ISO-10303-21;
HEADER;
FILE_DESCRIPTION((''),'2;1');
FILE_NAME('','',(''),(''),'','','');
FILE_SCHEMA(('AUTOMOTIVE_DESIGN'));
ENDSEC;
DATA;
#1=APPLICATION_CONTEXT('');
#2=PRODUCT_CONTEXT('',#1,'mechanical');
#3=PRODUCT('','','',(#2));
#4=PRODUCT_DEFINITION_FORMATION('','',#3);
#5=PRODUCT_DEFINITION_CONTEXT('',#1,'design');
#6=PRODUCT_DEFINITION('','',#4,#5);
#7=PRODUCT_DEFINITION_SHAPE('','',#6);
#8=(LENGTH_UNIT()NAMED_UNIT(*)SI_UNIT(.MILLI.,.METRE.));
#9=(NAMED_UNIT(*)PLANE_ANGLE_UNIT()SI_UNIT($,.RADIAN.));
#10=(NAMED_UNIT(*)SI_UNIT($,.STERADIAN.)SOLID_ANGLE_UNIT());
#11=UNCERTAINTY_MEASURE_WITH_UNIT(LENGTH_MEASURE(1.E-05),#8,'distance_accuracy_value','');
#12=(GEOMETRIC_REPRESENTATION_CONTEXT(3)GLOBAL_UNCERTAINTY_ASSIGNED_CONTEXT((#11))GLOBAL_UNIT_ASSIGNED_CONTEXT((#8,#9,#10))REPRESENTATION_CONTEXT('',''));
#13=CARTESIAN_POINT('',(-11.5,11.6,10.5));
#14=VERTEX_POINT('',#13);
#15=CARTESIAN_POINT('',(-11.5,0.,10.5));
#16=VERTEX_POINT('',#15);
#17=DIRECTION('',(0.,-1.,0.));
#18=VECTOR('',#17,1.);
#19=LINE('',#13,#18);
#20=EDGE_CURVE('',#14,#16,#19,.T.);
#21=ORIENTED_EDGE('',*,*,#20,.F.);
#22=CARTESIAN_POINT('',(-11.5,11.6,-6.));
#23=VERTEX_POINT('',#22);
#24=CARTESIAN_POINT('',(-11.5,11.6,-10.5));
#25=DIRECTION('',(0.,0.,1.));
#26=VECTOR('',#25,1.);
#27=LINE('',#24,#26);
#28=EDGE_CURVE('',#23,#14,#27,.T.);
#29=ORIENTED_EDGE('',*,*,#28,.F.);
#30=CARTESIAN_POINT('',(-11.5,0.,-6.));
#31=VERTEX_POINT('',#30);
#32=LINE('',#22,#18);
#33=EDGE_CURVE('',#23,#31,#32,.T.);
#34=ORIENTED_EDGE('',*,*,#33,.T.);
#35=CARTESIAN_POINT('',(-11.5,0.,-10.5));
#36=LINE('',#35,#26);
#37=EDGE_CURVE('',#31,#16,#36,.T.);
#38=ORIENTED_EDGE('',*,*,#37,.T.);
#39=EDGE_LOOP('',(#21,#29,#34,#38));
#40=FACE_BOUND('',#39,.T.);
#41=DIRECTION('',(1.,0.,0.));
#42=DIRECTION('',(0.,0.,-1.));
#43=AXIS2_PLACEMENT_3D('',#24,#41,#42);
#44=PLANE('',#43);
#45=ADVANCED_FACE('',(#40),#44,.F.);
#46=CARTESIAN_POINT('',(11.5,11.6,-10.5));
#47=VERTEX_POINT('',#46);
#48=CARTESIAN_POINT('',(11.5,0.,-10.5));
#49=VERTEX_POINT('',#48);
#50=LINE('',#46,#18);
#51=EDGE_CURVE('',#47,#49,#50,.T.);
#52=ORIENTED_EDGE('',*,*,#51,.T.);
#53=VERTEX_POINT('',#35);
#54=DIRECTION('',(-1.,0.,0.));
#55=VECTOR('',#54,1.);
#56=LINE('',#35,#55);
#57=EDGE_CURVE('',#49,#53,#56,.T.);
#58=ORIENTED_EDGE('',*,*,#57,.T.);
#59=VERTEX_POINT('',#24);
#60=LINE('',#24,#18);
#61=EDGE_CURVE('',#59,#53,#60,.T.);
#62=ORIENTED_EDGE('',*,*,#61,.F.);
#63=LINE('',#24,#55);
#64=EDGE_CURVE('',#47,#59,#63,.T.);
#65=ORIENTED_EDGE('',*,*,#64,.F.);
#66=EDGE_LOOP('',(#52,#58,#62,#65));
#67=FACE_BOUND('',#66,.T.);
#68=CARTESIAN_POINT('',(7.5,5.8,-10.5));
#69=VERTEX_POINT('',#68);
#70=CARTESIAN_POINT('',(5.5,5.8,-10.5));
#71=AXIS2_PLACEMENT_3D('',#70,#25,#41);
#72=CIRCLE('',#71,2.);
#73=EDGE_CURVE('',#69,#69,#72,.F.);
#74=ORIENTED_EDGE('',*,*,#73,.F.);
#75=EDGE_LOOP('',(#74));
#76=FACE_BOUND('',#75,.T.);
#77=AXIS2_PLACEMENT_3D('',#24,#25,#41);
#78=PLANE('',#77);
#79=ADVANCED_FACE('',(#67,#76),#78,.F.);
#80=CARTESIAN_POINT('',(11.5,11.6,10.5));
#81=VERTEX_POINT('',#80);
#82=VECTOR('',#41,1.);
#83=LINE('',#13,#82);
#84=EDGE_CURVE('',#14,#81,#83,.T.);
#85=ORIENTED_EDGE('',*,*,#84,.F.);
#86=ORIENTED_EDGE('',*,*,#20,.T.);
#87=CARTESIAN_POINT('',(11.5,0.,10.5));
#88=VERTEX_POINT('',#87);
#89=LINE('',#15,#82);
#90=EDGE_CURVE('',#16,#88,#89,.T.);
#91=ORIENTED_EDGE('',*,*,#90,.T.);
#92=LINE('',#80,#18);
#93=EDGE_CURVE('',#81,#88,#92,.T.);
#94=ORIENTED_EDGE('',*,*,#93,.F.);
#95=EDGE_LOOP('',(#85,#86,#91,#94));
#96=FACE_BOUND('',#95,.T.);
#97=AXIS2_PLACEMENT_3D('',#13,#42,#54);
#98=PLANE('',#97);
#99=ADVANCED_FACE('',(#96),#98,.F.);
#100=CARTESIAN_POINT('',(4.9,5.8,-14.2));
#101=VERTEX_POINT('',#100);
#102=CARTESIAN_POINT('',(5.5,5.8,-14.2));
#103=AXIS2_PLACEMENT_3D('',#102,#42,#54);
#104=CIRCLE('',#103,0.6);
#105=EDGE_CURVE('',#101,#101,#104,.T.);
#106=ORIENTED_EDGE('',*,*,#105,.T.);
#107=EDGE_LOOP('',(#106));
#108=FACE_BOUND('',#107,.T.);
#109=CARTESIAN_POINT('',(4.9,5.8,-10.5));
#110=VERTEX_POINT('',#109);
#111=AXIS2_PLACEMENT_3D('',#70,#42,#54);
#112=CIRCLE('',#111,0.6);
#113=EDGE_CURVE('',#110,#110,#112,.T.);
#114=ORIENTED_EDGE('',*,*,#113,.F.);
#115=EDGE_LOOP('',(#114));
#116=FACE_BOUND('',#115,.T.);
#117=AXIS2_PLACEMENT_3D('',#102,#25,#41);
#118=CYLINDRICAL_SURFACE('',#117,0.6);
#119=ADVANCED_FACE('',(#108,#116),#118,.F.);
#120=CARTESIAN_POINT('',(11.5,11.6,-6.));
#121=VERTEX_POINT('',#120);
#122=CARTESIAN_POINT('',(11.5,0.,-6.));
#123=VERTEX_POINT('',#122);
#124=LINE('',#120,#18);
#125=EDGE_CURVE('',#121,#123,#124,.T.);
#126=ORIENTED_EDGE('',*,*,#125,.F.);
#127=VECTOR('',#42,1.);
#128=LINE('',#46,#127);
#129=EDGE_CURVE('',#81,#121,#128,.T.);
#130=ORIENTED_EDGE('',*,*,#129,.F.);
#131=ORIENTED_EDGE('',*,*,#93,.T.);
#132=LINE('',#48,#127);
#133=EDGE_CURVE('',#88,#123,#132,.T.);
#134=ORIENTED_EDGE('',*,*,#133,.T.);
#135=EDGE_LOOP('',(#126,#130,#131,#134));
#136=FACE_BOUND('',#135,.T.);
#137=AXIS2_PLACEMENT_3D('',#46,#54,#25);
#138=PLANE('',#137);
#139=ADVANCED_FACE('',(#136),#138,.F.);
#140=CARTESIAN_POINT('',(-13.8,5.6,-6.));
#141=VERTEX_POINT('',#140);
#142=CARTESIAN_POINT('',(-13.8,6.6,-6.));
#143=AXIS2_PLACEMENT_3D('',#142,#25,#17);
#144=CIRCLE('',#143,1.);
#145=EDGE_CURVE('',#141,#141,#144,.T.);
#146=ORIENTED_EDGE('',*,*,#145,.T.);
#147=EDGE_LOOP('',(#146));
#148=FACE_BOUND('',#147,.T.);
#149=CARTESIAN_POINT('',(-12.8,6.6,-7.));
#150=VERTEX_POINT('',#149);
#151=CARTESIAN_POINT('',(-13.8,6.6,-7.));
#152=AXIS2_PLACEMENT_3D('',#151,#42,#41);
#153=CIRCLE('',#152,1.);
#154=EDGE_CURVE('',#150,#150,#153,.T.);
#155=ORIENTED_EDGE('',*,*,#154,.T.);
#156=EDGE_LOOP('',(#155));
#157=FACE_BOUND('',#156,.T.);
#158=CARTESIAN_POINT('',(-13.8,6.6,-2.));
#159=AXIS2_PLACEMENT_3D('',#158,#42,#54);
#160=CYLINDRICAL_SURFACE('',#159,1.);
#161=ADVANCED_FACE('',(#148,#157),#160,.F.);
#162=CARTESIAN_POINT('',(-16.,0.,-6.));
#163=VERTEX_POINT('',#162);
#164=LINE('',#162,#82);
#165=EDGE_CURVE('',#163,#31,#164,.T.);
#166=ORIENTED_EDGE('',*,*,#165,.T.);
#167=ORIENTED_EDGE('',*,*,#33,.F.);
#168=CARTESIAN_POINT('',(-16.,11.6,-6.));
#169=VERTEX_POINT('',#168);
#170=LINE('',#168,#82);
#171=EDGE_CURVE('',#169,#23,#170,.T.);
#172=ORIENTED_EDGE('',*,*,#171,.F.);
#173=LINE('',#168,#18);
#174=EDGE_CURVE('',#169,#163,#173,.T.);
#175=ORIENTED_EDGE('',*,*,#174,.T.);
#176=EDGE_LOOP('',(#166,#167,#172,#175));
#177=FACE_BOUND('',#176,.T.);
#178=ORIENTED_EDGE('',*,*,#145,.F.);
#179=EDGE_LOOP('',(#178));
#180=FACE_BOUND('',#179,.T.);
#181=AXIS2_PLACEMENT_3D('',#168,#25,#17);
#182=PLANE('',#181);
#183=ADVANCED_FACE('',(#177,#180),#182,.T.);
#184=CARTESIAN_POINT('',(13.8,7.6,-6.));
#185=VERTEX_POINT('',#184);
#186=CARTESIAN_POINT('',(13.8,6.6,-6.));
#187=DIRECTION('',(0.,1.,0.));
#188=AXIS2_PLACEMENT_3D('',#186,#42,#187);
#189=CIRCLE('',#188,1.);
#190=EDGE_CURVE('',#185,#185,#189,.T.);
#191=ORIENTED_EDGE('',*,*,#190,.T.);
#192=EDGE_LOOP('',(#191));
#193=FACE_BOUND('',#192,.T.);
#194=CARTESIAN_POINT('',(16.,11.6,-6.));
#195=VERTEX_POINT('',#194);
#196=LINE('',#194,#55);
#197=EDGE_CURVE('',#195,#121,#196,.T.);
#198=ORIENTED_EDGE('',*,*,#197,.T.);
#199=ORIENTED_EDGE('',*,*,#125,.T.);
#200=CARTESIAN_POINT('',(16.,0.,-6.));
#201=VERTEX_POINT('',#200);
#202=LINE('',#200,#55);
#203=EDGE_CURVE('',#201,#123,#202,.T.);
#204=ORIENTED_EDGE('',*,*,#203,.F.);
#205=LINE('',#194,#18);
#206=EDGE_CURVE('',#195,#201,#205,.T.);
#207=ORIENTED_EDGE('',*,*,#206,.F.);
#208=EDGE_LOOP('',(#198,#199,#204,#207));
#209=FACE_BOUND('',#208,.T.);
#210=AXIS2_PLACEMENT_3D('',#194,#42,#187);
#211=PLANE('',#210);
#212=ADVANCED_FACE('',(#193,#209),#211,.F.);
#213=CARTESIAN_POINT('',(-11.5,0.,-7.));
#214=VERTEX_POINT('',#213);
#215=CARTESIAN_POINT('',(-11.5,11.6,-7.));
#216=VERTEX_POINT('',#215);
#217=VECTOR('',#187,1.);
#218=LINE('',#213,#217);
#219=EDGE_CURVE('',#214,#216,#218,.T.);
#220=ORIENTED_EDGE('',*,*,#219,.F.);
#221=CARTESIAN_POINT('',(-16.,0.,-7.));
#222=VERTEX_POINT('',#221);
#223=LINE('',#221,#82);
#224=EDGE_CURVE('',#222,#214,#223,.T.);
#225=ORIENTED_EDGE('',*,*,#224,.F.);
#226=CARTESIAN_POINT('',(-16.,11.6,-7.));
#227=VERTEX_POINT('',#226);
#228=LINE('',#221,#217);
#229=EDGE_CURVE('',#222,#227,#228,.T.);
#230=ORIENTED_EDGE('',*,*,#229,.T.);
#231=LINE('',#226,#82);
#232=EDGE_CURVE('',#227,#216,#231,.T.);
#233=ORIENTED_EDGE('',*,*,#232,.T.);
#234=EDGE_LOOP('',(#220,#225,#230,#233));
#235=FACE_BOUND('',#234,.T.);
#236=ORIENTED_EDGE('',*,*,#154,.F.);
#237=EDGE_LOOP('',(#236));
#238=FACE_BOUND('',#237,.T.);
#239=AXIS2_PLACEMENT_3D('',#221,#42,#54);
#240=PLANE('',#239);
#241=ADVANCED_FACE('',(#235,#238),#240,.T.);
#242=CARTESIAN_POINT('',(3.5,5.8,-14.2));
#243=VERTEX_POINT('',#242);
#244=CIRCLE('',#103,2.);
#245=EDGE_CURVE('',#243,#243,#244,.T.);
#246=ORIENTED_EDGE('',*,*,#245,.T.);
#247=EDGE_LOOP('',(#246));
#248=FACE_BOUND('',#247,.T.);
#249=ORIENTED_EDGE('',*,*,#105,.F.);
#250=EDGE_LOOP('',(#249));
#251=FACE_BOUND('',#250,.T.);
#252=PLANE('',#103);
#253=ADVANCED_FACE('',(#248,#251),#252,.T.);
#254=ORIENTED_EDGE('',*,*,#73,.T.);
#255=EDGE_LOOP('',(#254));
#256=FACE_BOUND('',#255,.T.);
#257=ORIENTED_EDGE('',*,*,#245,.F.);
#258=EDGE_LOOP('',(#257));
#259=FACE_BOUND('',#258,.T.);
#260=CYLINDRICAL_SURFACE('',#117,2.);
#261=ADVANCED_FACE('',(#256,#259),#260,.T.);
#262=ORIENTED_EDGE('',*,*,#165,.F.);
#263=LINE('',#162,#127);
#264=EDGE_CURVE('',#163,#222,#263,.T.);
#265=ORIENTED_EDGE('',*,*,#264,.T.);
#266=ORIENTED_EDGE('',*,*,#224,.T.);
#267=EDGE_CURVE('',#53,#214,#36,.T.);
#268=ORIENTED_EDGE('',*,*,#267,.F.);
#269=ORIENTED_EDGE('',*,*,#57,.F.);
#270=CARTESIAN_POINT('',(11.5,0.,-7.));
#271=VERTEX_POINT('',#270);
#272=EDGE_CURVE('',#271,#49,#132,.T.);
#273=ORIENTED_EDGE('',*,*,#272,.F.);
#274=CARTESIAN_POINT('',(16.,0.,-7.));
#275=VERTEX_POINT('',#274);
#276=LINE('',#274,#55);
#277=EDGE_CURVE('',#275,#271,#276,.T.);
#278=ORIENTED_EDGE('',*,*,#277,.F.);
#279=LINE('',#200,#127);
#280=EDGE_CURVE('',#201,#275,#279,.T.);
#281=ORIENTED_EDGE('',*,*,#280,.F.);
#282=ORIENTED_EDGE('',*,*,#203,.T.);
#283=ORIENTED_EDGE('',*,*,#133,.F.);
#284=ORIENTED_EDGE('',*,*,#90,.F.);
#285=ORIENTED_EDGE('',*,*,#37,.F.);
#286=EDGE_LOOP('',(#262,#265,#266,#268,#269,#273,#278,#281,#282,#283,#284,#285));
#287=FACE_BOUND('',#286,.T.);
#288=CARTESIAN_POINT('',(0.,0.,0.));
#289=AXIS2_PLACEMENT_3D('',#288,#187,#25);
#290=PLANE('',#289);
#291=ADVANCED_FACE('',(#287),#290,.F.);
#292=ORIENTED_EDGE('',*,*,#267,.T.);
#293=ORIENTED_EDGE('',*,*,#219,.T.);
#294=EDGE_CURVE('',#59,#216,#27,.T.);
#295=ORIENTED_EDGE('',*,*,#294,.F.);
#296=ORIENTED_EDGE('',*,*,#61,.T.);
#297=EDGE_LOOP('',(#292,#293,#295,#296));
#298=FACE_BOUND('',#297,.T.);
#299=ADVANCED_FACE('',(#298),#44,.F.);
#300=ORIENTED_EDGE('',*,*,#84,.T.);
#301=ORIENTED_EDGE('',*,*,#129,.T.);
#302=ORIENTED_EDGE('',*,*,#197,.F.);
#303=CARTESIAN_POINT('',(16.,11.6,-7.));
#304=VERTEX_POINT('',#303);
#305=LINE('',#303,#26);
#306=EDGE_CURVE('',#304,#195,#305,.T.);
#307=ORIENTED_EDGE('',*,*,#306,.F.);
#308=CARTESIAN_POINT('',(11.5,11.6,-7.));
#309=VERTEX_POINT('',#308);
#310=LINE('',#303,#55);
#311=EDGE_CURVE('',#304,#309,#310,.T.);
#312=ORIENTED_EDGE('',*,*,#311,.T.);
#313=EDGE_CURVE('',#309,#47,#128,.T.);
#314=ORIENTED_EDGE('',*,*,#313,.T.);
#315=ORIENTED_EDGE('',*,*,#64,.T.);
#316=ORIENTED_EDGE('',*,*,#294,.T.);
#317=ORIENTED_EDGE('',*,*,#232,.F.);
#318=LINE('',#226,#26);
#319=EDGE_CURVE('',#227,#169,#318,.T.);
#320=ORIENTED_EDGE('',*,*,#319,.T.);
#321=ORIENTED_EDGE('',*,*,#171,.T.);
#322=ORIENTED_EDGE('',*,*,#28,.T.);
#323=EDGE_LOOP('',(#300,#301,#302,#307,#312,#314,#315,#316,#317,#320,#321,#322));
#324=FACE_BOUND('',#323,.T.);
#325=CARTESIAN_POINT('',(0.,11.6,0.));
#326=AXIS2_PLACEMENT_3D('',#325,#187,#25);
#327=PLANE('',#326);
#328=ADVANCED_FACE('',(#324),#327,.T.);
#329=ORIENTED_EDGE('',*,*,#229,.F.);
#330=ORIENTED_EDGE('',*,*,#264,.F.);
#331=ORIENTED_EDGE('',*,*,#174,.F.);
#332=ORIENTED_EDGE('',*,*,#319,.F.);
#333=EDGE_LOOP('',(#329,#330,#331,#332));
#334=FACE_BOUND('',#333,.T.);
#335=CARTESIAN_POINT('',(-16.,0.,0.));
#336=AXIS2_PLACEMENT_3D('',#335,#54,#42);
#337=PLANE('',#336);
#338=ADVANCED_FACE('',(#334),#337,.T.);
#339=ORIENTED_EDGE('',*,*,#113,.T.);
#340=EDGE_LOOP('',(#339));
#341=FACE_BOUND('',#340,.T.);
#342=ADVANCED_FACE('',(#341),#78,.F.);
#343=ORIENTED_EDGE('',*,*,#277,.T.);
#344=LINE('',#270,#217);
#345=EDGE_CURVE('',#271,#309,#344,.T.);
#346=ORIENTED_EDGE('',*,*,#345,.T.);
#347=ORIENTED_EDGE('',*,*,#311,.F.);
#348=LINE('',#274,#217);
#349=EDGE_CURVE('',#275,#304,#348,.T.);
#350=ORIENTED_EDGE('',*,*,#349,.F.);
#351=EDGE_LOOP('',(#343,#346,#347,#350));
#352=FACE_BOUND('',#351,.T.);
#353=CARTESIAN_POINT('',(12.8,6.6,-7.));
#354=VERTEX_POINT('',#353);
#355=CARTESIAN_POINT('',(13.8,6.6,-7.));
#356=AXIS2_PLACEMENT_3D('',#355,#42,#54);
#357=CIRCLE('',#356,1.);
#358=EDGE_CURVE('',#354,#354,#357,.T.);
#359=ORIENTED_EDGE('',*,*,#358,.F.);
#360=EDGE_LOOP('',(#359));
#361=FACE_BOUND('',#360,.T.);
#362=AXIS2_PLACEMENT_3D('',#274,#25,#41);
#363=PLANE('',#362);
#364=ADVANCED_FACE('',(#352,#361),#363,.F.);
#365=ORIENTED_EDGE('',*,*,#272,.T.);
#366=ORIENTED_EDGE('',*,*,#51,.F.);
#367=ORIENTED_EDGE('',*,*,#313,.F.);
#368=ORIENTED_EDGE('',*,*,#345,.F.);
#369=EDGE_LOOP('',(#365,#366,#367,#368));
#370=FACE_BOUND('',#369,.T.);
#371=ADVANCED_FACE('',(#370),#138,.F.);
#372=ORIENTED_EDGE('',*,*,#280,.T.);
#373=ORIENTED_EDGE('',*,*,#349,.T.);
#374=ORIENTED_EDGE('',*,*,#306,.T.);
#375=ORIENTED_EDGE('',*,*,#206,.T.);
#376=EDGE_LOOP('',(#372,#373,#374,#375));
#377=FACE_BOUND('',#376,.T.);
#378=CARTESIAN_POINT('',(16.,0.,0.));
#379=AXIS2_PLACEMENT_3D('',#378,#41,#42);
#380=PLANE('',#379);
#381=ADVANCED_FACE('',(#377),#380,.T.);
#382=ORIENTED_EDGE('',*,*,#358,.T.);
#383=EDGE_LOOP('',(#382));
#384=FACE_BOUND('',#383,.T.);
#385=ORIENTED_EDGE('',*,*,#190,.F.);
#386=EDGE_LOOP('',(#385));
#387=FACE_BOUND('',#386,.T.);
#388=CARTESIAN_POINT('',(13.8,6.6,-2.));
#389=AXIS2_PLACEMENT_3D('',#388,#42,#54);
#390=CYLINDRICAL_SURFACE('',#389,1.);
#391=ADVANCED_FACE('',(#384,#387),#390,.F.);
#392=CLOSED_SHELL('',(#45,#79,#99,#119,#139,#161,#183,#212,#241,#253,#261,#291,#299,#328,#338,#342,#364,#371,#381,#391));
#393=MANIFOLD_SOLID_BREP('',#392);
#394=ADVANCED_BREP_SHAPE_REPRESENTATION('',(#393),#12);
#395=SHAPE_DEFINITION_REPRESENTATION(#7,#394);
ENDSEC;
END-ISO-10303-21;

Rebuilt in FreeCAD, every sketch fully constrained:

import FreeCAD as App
import Part
import Sketcher

V = App.Vector

doc = App.newDocument("Part")
params = doc.addObject("Spreadsheet::Sheet", "Params")
for row, (alias, value) in enumerate([
    ("sketch1_width", "23 mm"),
    ("sketch1_height", "21 mm"),
    ("pad1_length", "11.6 mm"),
    ("sketch2_height", "1 mm"),
    ("sketch2_width", "11.6 mm"),
    ("pad2_length", "4.5 mm"),
    ("sketch3_diameter", "4 mm"),
    ("sketch3_diameter2", "1.2 mm"),
    ("pad3_length", "3.7 mm"),
    ("sketch4_diameter", "2 mm"),
    ("pocket1_length", "5 mm"),
], start=1):
    params.set(f"A{row}", alias)
    params.set(f"B{row}", "=" + value)
    params.setAlias(f"B{row}", alias)

body = doc.addObject("PartDesign::Body", "Body")

# Sketch on XZ plane
sketch1 = body.newObject("Sketcher::SketchObject", "Sketch")
sketch1.AttachmentSupport = (doc.getObject("XZ_Plane"), [""])
sketch1.MapMode = "FlatFace"
sketch1.addGeometry(Part.LineSegment(V(-12, -10, 0), V(-12, 10, 0)), False)
sketch1.addGeometry(Part.LineSegment(V(-12, 10, 0), V(12, 10, 0)), False)
sketch1.addGeometry(Part.LineSegment(V(12, 10, 0), V(12, -10, 0)), False)
sketch1.addGeometry(Part.LineSegment(V(12, -10, 0), V(-12, -10, 0)), False)
sketch1.addConstraint(Sketcher.Constraint("Coincident", 0, 2, 1, 1))
sketch1.addConstraint(Sketcher.Constraint("Coincident", 1, 2, 2, 1))
sketch1.addConstraint(Sketcher.Constraint("Coincident", 2, 2, 3, 1))
sketch1.addConstraint(Sketcher.Constraint("Coincident", 3, 2, 0, 1))
sketch1.addConstraint(Sketcher.Constraint("Vertical", 0))
sketch1.addConstraint(Sketcher.Constraint("Horizontal", 1))
sketch1.addConstraint(Sketcher.Constraint("Vertical", 2))
sketch1.addConstraint(Sketcher.Constraint("Horizontal", 3))
sketch1.addConstraint(Sketcher.Constraint("Symmetric", 0, 2, 2, 2, -1, 1))
sketch1.addConstraint(Sketcher.Constraint("DistanceX", 1, 1, 1, 2, 23.0))
sketch1.addConstraint(Sketcher.Constraint("DistanceY", 0, 1, 0, 2, 21.0))
sketch1.setExpression("Constraints[9]", "Params.sketch1_width")
sketch1.setExpression("Constraints[10]", "Params.sketch1_height")
pad1 = body.newObject("PartDesign::Pad", "Pad")
pad1.Profile = sketch1
pad1.setExpression("Length", "Params.pad1_length")
pad1.Reversed = True

# Sketch on YZ plane
sketch2 = body.newObject("Sketcher::SketchObject", "Sketch001")
sketch2.AttachmentSupport = (doc.getObject("YZ_Plane"), [""])
sketch2.MapMode = "FlatFace"
sketch2.AttachmentOffset = App.Placement(V(0, 0, 11.5), App.Rotation())
sketch2.addGeometry(Part.LineSegment(V(11.6, -6, 0), V(0, -6, 0)), False)
sketch2.addGeometry(Part.LineSegment(V(0, -6, 0), V(0, -7, 0)), False)
sketch2.addGeometry(Part.LineSegment(V(0, -7, 0), V(11.6, -7, 0)), False)
sketch2.addGeometry(Part.LineSegment(V(11.6, -7, 0), V(11.6, -6, 0)), False)
sketch2.addConstraint(Sketcher.Constraint("Coincident", 0, 2, 1, 1))
sketch2.addConstraint(Sketcher.Constraint("Coincident", 1, 2, 2, 1))
sketch2.addConstraint(Sketcher.Constraint("Coincident", 2, 2, 3, 1))
sketch2.addConstraint(Sketcher.Constraint("Coincident", 3, 2, 0, 1))
sketch2.addConstraint(Sketcher.Constraint("Horizontal", 0))
sketch2.addConstraint(Sketcher.Constraint("Vertical", 1))
sketch2.addConstraint(Sketcher.Constraint("Horizontal", 2))
sketch2.addConstraint(Sketcher.Constraint("Vertical", 3))
sketch2.addConstraint(Sketcher.Constraint("PointOnObject", 0, 2, -2))
sketch2.addConstraint(Sketcher.Constraint("DistanceY", 1, 2, 1, 1, 1.0))
sketch2.addConstraint(Sketcher.Constraint("DistanceX", 0, 2, 0, 1, 11.6))
sketch2.addConstraint(Sketcher.Constraint("DistanceY", 0, 2, -1, 1, 6.0))
sketch2.setExpression("Constraints[9]", "Params.sketch2_height")
sketch2.setExpression("Constraints[10]", "Params.sketch2_width")
pad2 = body.newObject("PartDesign::Pad", "Pad001")
pad2.Profile = sketch2
pad2.setExpression("Length", "Params.pad2_length")
doc.recompute()

mirrored = body.newObject("PartDesign::Mirrored", "Mirrored")
mirrored.Originals = [pad2]
mirrored.MirrorPlane = (doc.getObject("YZ_Plane"), [""])
body.Tip = mirrored

# Sketch on XY plane
sketch3 = body.newObject("Sketcher::SketchObject", "Sketch002")
sketch3.AttachmentSupport = (doc.getObject("XY_Plane"), [""])
sketch3.MapMode = "FlatFace"
sketch3.AttachmentOffset = App.Placement(V(0, 0, -10.5), App.Rotation())
sketch3.addGeometry(Part.Circle(V(5.5, 5.8, 0), V(0, 0, 1), 2), False)
sketch3.addGeometry(Part.Circle(V(5.5, 5.8, 0), V(0, 0, 1), 0.6), False)
sketch3.addConstraint(Sketcher.Constraint("Coincident", 1, 3, 0, 3))
sketch3.addConstraint(Sketcher.Constraint("Diameter", 0, 4.0))
sketch3.addConstraint(Sketcher.Constraint("Diameter", 1, 1.2))
sketch3.addConstraint(Sketcher.Constraint("DistanceX", -1, 1, 0, 3, 5.5))
sketch3.addConstraint(Sketcher.Constraint("DistanceY", -1, 1, 0, 3, 5.8))
sketch3.setExpression("Constraints[1]", "Params.sketch3_diameter")
sketch3.setExpression("Constraints[2]", "Params.sketch3_diameter2")
pad3 = body.newObject("PartDesign::Pad", "Pad002")
pad3.Profile = sketch3
pad3.setExpression("Length", "Params.pad3_length")
pad3.Reversed = True

# Sketch on XY plane
sketch4 = body.newObject("Sketcher::SketchObject", "Sketch003")
sketch4.AttachmentSupport = (doc.getObject("XY_Plane"), [""])
sketch4.MapMode = "FlatFace"
sketch4.AttachmentOffset = App.Placement(V(0, 0, -7), App.Rotation())
sketch4.addGeometry(Part.Circle(V(13.8, 6.6, 0), V(0, 0, 1), 1), False)
sketch4.addGeometry(Part.Circle(V(-13.8, 6.6, 0), V(0, 0, 1), 1), False)
sketch4.addConstraint(Sketcher.Constraint("Equal", 0, 1))
sketch4.addConstraint(Sketcher.Constraint("Symmetric", 0, 3, 1, 3, -2))
sketch4.addConstraint(Sketcher.Constraint("Diameter", 0, 2.0))
sketch4.addConstraint(Sketcher.Constraint("DistanceX", -1, 1, 0, 3, 13.8))
sketch4.addConstraint(Sketcher.Constraint("DistanceY", -1, 1, 0, 3, 6.6))
sketch4.setExpression("Constraints[2]", "Params.sketch4_diameter")
pocket1 = body.newObject("PartDesign::Pocket", "Pocket")
pocket1.Profile = sketch4
pocket1.setExpression("Length", "Params.pocket1_length")
pocket1.Reversed = True

doc.recompute()
